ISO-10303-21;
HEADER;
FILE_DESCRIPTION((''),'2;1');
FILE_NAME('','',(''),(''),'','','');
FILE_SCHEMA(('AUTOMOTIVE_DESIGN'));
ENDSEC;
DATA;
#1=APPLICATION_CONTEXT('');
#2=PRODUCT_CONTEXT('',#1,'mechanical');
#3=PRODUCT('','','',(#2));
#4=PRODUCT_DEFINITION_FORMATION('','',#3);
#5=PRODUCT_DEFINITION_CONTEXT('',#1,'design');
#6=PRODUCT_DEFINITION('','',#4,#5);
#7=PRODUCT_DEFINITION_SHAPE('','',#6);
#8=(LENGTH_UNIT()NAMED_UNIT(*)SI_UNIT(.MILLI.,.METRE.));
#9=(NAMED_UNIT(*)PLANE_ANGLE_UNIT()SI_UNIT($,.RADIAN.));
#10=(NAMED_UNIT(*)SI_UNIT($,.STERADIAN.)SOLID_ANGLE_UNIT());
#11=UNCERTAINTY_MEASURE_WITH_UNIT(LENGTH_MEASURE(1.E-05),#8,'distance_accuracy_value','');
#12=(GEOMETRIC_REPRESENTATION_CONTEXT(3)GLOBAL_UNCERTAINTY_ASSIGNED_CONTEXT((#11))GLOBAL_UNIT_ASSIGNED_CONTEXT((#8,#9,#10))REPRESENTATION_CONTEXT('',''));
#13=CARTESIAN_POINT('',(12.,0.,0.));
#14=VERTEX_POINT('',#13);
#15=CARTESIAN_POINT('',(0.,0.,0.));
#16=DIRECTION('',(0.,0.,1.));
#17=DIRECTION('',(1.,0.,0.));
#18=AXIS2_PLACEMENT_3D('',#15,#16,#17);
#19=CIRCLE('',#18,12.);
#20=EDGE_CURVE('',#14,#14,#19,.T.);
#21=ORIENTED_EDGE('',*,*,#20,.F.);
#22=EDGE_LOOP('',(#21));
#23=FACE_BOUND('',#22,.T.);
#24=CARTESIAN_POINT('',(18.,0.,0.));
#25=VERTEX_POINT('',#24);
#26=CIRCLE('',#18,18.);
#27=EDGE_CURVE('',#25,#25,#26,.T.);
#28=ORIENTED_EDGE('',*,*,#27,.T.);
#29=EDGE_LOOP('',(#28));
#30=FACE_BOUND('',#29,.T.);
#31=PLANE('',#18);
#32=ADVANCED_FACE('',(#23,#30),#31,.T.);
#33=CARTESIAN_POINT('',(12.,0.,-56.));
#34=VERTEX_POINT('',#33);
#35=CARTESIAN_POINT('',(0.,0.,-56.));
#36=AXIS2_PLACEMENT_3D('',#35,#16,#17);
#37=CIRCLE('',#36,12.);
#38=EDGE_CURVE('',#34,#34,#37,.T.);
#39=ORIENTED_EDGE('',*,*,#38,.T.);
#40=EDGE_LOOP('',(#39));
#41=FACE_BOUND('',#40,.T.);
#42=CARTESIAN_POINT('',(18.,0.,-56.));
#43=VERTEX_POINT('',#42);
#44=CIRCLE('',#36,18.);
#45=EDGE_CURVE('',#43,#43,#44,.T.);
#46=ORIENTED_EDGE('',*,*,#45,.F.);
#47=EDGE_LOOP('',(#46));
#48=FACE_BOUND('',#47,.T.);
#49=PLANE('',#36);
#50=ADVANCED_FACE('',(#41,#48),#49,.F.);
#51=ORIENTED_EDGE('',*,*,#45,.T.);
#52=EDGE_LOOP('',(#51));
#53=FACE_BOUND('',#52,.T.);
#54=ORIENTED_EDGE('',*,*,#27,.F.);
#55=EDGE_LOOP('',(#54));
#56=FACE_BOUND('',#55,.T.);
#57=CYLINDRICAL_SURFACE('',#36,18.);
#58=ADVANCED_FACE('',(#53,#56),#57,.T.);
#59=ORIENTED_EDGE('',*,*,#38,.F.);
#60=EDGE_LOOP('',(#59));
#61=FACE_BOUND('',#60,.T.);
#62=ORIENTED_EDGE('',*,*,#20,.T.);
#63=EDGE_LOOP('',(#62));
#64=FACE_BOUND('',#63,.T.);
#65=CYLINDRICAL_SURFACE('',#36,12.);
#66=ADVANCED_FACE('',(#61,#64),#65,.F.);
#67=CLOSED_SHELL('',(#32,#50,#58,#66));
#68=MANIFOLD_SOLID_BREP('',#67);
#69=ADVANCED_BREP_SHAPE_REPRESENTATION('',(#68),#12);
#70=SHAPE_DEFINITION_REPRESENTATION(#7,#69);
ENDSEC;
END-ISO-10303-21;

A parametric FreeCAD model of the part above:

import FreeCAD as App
import Part
import Sketcher

V = App.Vector
Q = App.Units.Quantity

doc = App.newDocument("Part")
params = doc.addObject("Spreadsheet::Sheet", "Params")
for row, (alias, value) in enumerate([
    ("sketch1_diameter", "36 mm"),
    ("sketch1_diameter2", "24 mm"),
    ("pad1_length", "56 mm"),
], start=1):
    params.set(f"A{row}", alias)
    params.set(f"B{row}", "=" + value)
    params.setAlias(f"B{row}", alias)

body = doc.addObject("PartDesign::Body", "Body")

# Sketch on XY plane
sketch1 = body.newObject("Sketcher::SketchObject", "Sketch")
sketch1.AttachmentSupport = (doc.getObject("XY_Plane"), [""])
sketch1.MapMode = "FlatFace"
sketch1.addGeometry([
    Part.Circle(V(0, 0, 0), V(0, 0, 1), 18),
    Part.Circle(V(0, 0, 0), V(0, 0, 1), 12),
], False)
sketch1.addConstraint([
    Sketcher.Constraint("Coincident", 0, 3, -1, 1),
    Sketcher.Constraint("Coincident", 1, 3, -1, 1),
    Sketcher.Constraint("Diameter", 0, Q("36 mm")),
    Sketcher.Constraint("Diameter", 1, Q("24 mm")),
])
sketch1.setExpression("Constraints[2]", "Params.sketch1_diameter")
sketch1.setExpression("Constraints[3]", "Params.sketch1_diameter2")
pad1 = body.newObject("PartDesign::Pad", "Pad")
pad1.Profile = sketch1
pad1.setExpression("Length", "Params.pad1_length")
pad1.Reversed = True

doc.recompute()
